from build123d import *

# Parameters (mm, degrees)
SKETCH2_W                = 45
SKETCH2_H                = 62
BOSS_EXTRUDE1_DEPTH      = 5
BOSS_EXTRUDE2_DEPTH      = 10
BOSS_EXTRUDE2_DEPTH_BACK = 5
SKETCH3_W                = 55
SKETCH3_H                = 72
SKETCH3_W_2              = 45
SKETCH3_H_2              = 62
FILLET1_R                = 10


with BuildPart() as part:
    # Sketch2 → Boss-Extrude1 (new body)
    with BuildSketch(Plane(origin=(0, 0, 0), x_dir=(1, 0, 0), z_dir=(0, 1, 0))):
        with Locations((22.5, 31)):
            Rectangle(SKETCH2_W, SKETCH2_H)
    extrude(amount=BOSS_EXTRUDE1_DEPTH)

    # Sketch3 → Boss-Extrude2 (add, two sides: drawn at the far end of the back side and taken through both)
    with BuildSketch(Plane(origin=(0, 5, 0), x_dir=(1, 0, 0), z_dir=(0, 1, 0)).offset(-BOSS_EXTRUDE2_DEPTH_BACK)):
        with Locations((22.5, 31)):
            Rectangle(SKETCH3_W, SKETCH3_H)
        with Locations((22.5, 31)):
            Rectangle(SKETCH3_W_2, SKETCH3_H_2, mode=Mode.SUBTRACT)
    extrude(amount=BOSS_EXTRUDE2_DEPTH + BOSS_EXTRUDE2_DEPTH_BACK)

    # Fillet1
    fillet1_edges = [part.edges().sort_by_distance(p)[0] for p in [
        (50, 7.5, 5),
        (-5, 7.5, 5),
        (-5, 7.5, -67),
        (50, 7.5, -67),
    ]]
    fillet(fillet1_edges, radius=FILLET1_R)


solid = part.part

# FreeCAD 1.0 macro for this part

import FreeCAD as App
import Part
import Sketcher

V = App.Vector
Q = App.Units.Quantity


def edges_at(feature, points):
    """Names of the edges that pass closest to the given points."""
    edges = feature.Shape.Edges
    near = lambda p: min(range(len(edges)), key=lambda i: edges[i].distToShape(Part.Vertex(*p))[0])
    return sorted({f"Edge{near(p) + 1}" for p in points})

doc = App.newDocument("Part")
body = doc.addObject("PartDesign::Body", "Body")

# Sketch on XZ plane
sketch1 = doc.addObject("Sketcher::SketchObject", "Sketch")
body.addObject(sketch1)
sketch1.AttachmentSupport = (doc.XZ_Plane, [""])
sketch1.MapMode = "FlatFace"
sketch1.addGeometry([
    Part.LineSegment(V(0, -62, 0), V(0, 0, 0)),
    Part.LineSegment(V(0, 0, 0), V(45, 0, 0)),
    Part.LineSegment(V(45, 0, 0), V(45, -62, 0)),
    Part.LineSegment(V(45, -62, 0), V(0, -62, 0)),
], False)
sketch1.addConstraint([
    Sketcher.Constraint("Coincident", 0, 2, 1, 1),
    Sketcher.Constraint("Coincident", 1, 2, 2, 1),
    Sketcher.Constraint("Coincident", 2, 2, 3, 1),
    Sketcher.Constraint("Coincident", 3, 2, 0, 1),
    Sketcher.Constraint("Vertical", 0),
    Sketcher.Constraint("Horizontal", 1),
    Sketcher.Constraint("Vertical", 2),
    Sketcher.Constraint("Horizontal", 3),
    Sketcher.Constraint("Coincident", 0, 2, -1, 1),
    Sketcher.Constraint("DistanceX", 1, 1, 1, 2, Q("45 mm")),
    Sketcher.Constraint("DistanceY", 0, 1, 0, 2, Q("62 mm")),
])
pad1 = doc.addObject("PartDesign::Pad", "Pad")
body.addObject(pad1)
pad1.Profile = sketch1
pad1.Length = 5
pad1.Reversed = True

# Sketch on XZ plane
sketch2 = doc.addObject("Sketcher::SketchObject", "Sketch001")
body.addObject(sketch2)
sketch2.AttachmentSupport = (doc.XZ_Plane, [""])
sketch2.MapMode = "FlatFace"
sketch2.AttachmentOffset = App.Placement(V(0, 0, -5), App.Rotation())
sketch2.addGeometry([
    Part.LineSegment(V(-5, -67, 0), V(-5, 5, 0)),  # 0
    Part.LineSegment(V(-5, 5, 0), V(50, 5, 0)),  # 1
    Part.LineSegment(V(50, 5, 0), V(50, -67, 0)),  # 2
    Part.LineSegment(V(50, -67, 0), V(-5, -67, 0)),  # 3
    Part.LineSegment(V(45, 0, 0), V(0, 0, 0)),  # 4
    Part.LineSegment(V(0, 0, 0), V(0, -62, 0)),  # 5
    Part.LineSegment(V(0, -62, 0), V(45, -62, 0)),  # 6
    Part.LineSegment(V(45, -62, 0), V(45, 0, 0)),  # 7
], False)
sketch2.addConstraint([
    Sketcher.Constraint("Coincident", 0, 2, 1, 1),
    Sketcher.Constraint("Coincident", 1, 2, 2, 1),
    Sketcher.Constraint("Coincident", 2, 2, 3, 1),
    Sketcher.Constraint("Coincident", 3, 2, 0, 1),
    Sketcher.Constraint("Coincident", 4, 2, 5, 1),
    Sketcher.Constraint("Coincident", 5, 2, 6, 1),
    Sketcher.Constraint("Coincident", 6, 2, 7, 1),
    Sketcher.Constraint("Coincident", 7, 2, 4, 1),
    Sketcher.Constraint("Vertical", 0),
    Sketcher.Constraint("Horizontal", 1),
    Sketcher.Constraint("Vertical", 2),
    Sketcher.Constraint("Horizontal", 3),
    Sketcher.Constraint("Horizontal", 4),
    Sketcher.Constraint("Vertical", 5),
    Sketcher.Constraint("Horizontal", 6),
    Sketcher.Constraint("Vertical", 7),
    Sketcher.Constraint("Coincident", 4, 2, -1, 1),
    Sketcher.Constraint("DistanceX", 1, 1, 1, 2, Q("55 mm")),
    Sketcher.Constraint("DistanceX", 4, 2, 4, 1, Q("45 mm")),
    Sketcher.Constraint("DistanceY", 0, 1, 0, 2, Q("72 mm")),
    Sketcher.Constraint("DistanceY", 5, 2, 5, 1, Q("62 mm")),
    Sketcher.Constraint("DistanceX", 0, 2, -1, 1, Q("5 mm")),
    Sketcher.Constraint("DistanceY", -1, 1, 0, 2, Q("5 mm")),
])
pad2 = doc.addObject("PartDesign::Pad", "Pad001")
body.addObject(pad2)
pad2.Profile = sketch2
pad2.Type = "TwoLengths"
pad2.Length = 10
pad2.Length2 = 5
pad2.Reversed = True
doc.recompute()

fillet = doc.addObject("PartDesign::Fillet", "Fillet")
body.addObject(fillet)
fillet.Base = (pad2, edges_at(pad2, [
    (50, 7.5, 5),
    (-5, 7.5, 5),
    (-5, 7.5, -67),
    (50, 7.5, -67),
]))
fillet.Radius = 10

doc.recompute()
